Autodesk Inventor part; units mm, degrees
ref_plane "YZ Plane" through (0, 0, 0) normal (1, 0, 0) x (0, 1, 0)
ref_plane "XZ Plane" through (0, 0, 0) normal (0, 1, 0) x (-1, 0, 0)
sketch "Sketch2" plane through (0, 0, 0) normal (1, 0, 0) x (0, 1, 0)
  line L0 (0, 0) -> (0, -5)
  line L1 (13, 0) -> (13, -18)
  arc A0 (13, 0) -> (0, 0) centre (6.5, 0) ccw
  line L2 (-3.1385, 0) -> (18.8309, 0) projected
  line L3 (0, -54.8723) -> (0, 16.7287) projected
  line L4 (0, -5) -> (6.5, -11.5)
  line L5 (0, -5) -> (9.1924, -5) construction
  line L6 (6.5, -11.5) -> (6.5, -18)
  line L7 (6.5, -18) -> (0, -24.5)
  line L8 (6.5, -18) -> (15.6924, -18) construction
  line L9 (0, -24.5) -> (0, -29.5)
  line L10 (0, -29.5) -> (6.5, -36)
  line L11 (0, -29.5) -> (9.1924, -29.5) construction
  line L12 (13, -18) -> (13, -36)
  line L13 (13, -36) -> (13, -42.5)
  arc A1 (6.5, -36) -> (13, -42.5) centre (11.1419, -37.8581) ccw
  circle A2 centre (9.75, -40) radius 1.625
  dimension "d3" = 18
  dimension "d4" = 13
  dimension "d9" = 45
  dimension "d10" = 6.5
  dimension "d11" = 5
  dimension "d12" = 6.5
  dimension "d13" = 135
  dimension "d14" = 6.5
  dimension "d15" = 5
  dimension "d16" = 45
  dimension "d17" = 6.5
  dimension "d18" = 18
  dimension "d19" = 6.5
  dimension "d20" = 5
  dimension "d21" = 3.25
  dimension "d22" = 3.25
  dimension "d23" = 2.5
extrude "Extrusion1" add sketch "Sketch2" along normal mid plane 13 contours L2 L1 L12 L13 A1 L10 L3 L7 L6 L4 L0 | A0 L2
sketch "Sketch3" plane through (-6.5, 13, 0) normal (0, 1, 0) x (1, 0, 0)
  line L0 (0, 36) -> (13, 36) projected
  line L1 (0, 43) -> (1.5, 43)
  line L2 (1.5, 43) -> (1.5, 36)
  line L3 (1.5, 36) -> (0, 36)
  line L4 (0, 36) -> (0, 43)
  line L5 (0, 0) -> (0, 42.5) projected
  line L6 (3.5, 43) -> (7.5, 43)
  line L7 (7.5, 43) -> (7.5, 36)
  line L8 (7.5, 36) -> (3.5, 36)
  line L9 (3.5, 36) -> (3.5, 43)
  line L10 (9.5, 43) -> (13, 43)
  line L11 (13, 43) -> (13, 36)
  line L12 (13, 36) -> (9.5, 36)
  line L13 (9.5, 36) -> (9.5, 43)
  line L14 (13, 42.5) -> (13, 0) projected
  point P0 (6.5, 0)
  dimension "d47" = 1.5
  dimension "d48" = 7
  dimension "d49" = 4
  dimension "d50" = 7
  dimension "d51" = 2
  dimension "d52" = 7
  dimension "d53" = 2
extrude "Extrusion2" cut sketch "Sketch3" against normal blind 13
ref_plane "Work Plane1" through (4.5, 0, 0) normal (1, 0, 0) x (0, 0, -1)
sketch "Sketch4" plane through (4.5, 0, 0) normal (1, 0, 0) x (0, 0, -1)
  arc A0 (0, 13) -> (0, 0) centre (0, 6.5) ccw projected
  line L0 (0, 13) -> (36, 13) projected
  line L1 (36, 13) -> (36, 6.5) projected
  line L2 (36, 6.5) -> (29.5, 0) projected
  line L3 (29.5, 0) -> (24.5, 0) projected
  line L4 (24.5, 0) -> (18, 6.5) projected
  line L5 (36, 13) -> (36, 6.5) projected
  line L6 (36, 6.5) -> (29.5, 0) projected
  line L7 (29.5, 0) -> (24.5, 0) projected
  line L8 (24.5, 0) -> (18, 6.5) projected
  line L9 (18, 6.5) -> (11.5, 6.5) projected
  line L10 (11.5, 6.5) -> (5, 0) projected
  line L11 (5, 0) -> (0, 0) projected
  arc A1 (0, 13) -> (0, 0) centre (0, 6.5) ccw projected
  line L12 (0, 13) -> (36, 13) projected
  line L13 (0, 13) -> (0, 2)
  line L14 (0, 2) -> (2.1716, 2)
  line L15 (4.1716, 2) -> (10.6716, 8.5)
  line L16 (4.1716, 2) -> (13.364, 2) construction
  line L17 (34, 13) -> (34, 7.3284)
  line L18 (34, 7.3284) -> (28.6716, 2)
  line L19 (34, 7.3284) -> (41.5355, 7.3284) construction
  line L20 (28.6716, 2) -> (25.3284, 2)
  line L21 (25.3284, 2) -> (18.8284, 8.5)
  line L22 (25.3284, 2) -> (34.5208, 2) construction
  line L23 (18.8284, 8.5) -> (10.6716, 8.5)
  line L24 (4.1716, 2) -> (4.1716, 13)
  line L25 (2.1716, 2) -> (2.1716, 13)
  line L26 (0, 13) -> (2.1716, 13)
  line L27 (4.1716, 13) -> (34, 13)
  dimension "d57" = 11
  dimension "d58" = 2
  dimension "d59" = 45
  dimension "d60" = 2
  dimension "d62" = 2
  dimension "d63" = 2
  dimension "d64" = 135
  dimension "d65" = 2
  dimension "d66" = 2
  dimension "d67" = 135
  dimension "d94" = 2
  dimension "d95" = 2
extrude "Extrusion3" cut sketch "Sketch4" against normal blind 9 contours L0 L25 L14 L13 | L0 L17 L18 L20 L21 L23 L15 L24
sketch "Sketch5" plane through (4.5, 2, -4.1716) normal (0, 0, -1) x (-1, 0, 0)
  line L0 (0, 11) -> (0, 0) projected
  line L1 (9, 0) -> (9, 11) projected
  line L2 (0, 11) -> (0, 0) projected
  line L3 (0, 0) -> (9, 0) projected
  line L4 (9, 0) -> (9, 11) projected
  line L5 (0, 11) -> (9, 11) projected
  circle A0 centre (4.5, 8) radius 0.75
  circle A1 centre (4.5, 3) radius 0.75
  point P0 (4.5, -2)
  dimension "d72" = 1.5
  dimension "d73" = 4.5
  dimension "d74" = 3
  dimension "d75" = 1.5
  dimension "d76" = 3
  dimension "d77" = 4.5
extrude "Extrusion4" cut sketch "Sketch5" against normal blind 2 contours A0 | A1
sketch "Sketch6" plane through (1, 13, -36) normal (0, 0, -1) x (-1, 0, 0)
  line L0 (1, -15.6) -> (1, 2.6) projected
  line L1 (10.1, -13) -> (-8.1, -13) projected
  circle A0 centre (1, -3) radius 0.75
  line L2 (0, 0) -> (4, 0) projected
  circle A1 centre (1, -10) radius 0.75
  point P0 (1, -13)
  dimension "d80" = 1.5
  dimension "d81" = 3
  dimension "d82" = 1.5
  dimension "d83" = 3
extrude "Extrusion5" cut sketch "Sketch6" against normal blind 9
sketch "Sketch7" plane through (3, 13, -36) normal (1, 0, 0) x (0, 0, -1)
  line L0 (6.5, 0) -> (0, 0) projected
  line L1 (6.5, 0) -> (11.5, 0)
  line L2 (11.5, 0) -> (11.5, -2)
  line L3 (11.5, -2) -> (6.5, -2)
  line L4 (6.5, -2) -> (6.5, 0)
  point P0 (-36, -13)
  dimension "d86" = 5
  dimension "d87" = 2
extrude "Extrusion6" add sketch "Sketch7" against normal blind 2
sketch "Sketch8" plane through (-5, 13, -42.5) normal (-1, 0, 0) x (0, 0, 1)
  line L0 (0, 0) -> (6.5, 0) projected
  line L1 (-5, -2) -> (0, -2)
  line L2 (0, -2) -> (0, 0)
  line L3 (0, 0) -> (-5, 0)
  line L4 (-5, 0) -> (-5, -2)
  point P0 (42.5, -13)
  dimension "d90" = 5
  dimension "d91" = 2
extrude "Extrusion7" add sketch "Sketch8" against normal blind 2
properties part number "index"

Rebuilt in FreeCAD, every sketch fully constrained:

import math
import FreeCAD as App
import Part
import Sketcher

V = App.Vector
Q = App.Units.Quantity

doc = App.newDocument("Part")
body = doc.addObject("PartDesign::Body", "Body")

sketch1 = doc.addObject("Sketcher::SketchObject", "Sketch")
body.addObject(sketch1)
sketch1.AttachmentSupport = (doc.YZ_Plane, [""])
sketch1.MapMode = "FlatFace"
sketch1.addGeometry(Part.ArcOfCircle(Part.Circle(V(6.5, 0, 0), V(0, 0, 1), 6.5), math.radians(0), math.radians(180)), False)
sketch1.addGeometry(Part.LineSegment(V(0, 0, 0), V(0, -5, 0)), False)
sketch1.addGeometry(Part.LineSegment(V(0, -5, 0), V(6.5, -11.5, 0)), False)
sketch1.addGeometry(Part.LineSegment(V(6.5, -11.5, 0), V(6.5, -18, 0)), False)
sketch1.addGeometry(Part.LineSegment(V(6.5, -18, 0), V(0, -24.5, 0)), False)
sketch1.addGeometry(Part.LineSegment(V(0, -24.5, 0), V(0, -29.5, 0)), False)
sketch1.addGeometry(Part.LineSegment(V(0, -29.5, 0), V(6.5, -36, 0)), False)
sketch1.addGeometry(Part.ArcOfCircle(Part.Circle(V(11.1419, -37.8581, 0), V(0, 0, 1), 4.999977), math.radians(158.184333), math.radians(291.815667)), False)
sketch1.addGeometry(Part.LineSegment(V(13, -42.5, 0), V(13, 0, 0)), False)
sketch1.addGeometry(Part.Circle(V(9.75, -40, 0), V(0, 0, 1), 1.625), False)
sketch1.addConstraint(Sketcher.Constraint("Tangent", 0, 2, 1, 1))
sketch1.addConstraint(Sketcher.Constraint("Coincident", 1, 2, 2, 1))
sketch1.addConstraint(Sketcher.Constraint("Coincident", 2, 2, 3, 1))
sketch1.addConstraint(Sketcher.Constraint("Coincident", 3, 2, 4, 1))
sketch1.addConstraint(Sketcher.Constraint("Coincident", 4, 2, 5, 1))
sketch1.addConstraint(Sketcher.Constraint("Coincident", 5, 2, 6, 1))
sketch1.addConstraint(Sketcher.Constraint("Coincident", 6, 2, 7, 1))
sketch1.addConstraint(Sketcher.Constraint("Coincident", 7, 2, 8, 1))
sketch1.addConstraint(Sketcher.Constraint("Tangent", 8, 2, 0, 1))
sketch1.addConstraint(Sketcher.Constraint("Vertical", 1))
sketch1.addConstraint(Sketcher.Constraint("Vertical", 3))
sketch1.addConstraint(Sketcher.Constraint("Vertical", 5))
sketch1.addConstraint(Sketcher.Constraint("Vertical", 8))
sketch1.addConstraint(Sketcher.Constraint("Coincident", 0, 2, -1, 1))
sketch1.addConstraint(Sketcher.Constraint("PointOnObject", 4, 2, -2))
sketch1.addConstraint(Sketcher.Constraint("Perpendicular", 2, 4))
sketch1.addConstraint(Sketcher.Constraint("Perpendicular", 4, 6))
sketch1.addConstraint(Sketcher.Constraint("Vertical", 0, 3, 2, 2))
sketch1.addConstraint(Sketcher.Constraint("Vertical", 3, 2, 6, 2))
sketch1.addConstraint(Sketcher.Constraint("Equal", 1, 5))
sketch1.addConstraint(Sketcher.Constraint("Equal", 2, 4))
sketch1.addConstraint(Sketcher.Constraint("Radius", 7, Q("5 mm")))
sketch1.addConstraint(Sketcher.Constraint("Radius", 0, Q("6.5 mm")))
sketch1.addConstraint(Sketcher.Constraint("Diameter", 9, Q("3.25 mm")))
sketch1.addConstraint(Sketcher.Constraint("DistanceY", 1, 2, 1, 1, Q("5 mm")))
sketch1.addConstraint(Sketcher.Constraint("DistanceY", 3, 2, 3, 1, Q("6.5 mm")))
sketch1.addConstraint(Sketcher.Constraint("DistanceY", 7, 2, 5, 2, Q("13 mm")))
sketch1.addConstraint(Sketcher.Constraint("DistanceY", 7, 2, 9, 3, Q("2.5 mm")))
sketch1.addConstraint(Sketcher.Constraint("DistanceX", 0, 3, 9, 3, Q("3.25 mm")))
pad1 = doc.addObject("PartDesign::Pad", "Pad")
body.addObject(pad1)
pad1.Profile = sketch1
pad1.Length = 13
pad1.Midplane = True

sketch2 = doc.addObject("Sketcher::SketchObject", "Sketch001")
body.addObject(sketch2)
sketch2.AttachmentSupport = (doc.XZ_Plane, [""])
sketch2.MapMode = "FlatFace"
sketch2.AttachmentOffset = App.Placement(V(0, 0, -13), App.Rotation())
sketch2.addGeometry(Part.LineSegment(V(-6.5, -43, 0), V(-6.5, -36, 0)), False)
sketch2.addGeometry(Part.LineSegment(V(-6.5, -36, 0), V(-5, -36, 0)), False)
sketch2.addGeometry(Part.LineSegment(V(-5, -36, 0), V(-5, -43, 0)), False)
sketch2.addGeometry(Part.LineSegment(V(-5, -43, 0), V(-6.5, -43, 0)), False)
sketch2.addGeometry(Part.LineSegment(V(3, -43, 0), V(3, -36, 0)), False)
sketch2.addGeometry(Part.LineSegment(V(3, -36, 0), V(6.5, -36, 0)), False)
sketch2.addGeometry(Part.LineSegment(V(6.5, -36, 0), V(6.5, -43, 0)), False)
sketch2.addGeometry(Part.LineSegment(V(6.5, -43, 0), V(3, -43, 0)), False)
sketch2.addGeometry(Part.LineSegment(V(-3, -43, 0), V(-3, -36, 0)), False)
sketch2.addGeometry(Part.LineSegment(V(-3, -36, 0), V(1, -36, 0)), False)
sketch2.addGeometry(Part.LineSegment(V(1, -36, 0), V(1, -43, 0)), False)
sketch2.addGeometry(Part.LineSegment(V(1, -43, 0), V(-3, -43, 0)), False)
sketch2.addConstraint(Sketcher.Constraint("Coincident", 0, 2, 1, 1))
sketch2.addConstraint(Sketcher.Constraint("Coincident", 1, 2, 2, 1))
sketch2.addConstraint(Sketcher.Constraint("Coincident", 2, 2, 3, 1))
sketch2.addConstraint(Sketcher.Constraint("Coincident", 3, 2, 0, 1))
sketch2.addConstraint(Sketcher.Constraint("Coincident", 4, 2, 5, 1))
sketch2.addConstraint(Sketcher.Constraint("Coincident", 5, 2, 6, 1))
sketch2.addConstraint(Sketcher.Constraint("Coincident", 6, 2, 7, 1))
sketch2.addConstraint(Sketcher.Constraint("Coincident", 7, 2, 4, 1))
sketch2.addConstraint(Sketcher.Constraint("Coincident", 8, 2, 9, 1))
sketch2.addConstraint(Sketcher.Constraint("Coincident", 9, 2, 10, 1))
sketch2.addConstraint(Sketcher.Constraint("Coincident", 10, 2, 11, 1))
sketch2.addConstraint(Sketcher.Constraint("Coincident", 11, 2, 8, 1))
sketch2.addConstraint(Sketcher.Constraint("Vertical", 0))
sketch2.addConstraint(Sketcher.Constraint("Horizontal", 1))
sketch2.addConstraint(Sketcher.Constraint("Vertical", 2))
sketch2.addConstraint(Sketcher.Constraint("Horizontal", 3))
sketch2.addConstraint(Sketcher.Constraint("Vertical", 4))
sketch2.addConstraint(Sketcher.Constraint("Horizontal", 5))
sketch2.addConstraint(Sketcher.Constraint("Vertical", 6))
sketch2.addConstraint(Sketcher.Constraint("Horizontal", 7))
sketch2.addConstraint(Sketcher.Constraint("Vertical", 8))
sketch2.addConstraint(Sketcher.Constraint("Horizontal", 9))
sketch2.addConstraint(Sketcher.Constraint("Vertical", 10))
sketch2.addConstraint(Sketcher.Constraint("Horizontal", 11))
sketch2.addConstraint(Sketcher.Constraint("Symmetric", 0, 2, 5, 2, -2))
sketch2.addConstraint(Sketcher.Constraint("Symmetric", 4, 2, 8, 2, -2))
sketch2.addConstraint(Sketcher.Constraint("Horizontal", 3, 2, 6, 2))
sketch2.addConstraint(Sketcher.Constraint("Horizontal", 7, 2, 10, 2))
sketch2.addConstraint(Sketcher.Constraint("DistanceX", 9, 1, 9, 2, Q("4 mm")))
sketch2.addConstraint(Sketcher.Constraint("DistanceY", 0, 1, 0, 2, Q("7 mm")))
sketch2.addConstraint(Sketcher.Constraint("DistanceX", 1, 1, 1, 2, Q("1.5 mm")))
sketch2.addConstraint(Sketcher.Constraint("DistanceX", 1, 2, 8, 2, Q("2 mm")))
sketch2.addConstraint(Sketcher.Constraint("DistanceX", 9, 2, 4, 2, Q("2 mm")))
sketch2.addConstraint(Sketcher.Constraint("DistanceY", 0, 2, -1, 1, Q("36 mm")))
pocket1 = doc.addObject("PartDesign::Pocket", "Pocket")
body.addObject(pocket1)
pocket1.Profile = sketch2
pocket1.Length = 13
pocket1.Reversed = True

sketch3 = doc.addObject("Sketcher::SketchObject", "Sketch002")
body.addObject(sketch3)
sketch3.AttachmentSupport = (doc.YZ_Plane, [""])
sketch3.MapMode = "FlatFace"
sketch3.AttachmentOffset = App.Placement(V(0, 0, 4.5), App.Rotation())
sketch3.addGeometry(Part.LineSegment(V(13, -2.1716, 0), V(13, 0, 0)), False)
sketch3.addGeometry(Part.LineSegment(V(13, 0, 0), V(2, 0, 0)), False)
sketch3.addGeometry(Part.LineSegment(V(2, 0, 0), V(2, -2.1716, 0)), False)
sketch3.addGeometry(Part.LineSegment(V(2, -2.1716, 0), V(13, -2.1716, 0)), False)
sketch3.addGeometry(Part.LineSegment(V(13, -34, 0), V(13, -4.1716, 0)), False)
sketch3.addGeometry(Part.LineSegment(V(13, -4.1716, 0), V(2, -4.1716, 0)), False)
sketch3.addGeometry(Part.LineSegment(V(2, -4.1716, 0), V(8.5, -10.6716, 0)), False)
sketch3.addGeometry(Part.LineSegment(V(8.5, -10.6716, 0), V(8.5, -18.8284, 0)), False)
sketch3.addGeometry(Part.LineSegment(V(8.5, -18.8284, 0), V(2, -25.3284, 0)), False)
sketch3.addGeometry(Part.LineSegment(V(2, -25.3284, 0), V(2, -28.6716, 0)), False)
sketch3.addGeometry(Part.LineSegment(V(2, -28.6716, 0), V(7.3284, -34, 0)), False)
sketch3.addGeometry(Part.LineSegment(V(7.3284, -34, 0), V(13, -34, 0)), False)
sketch3.addConstraint(Sketcher.Constraint("Coincident", 0, 2, 1, 1))
sketch3.addConstraint(Sketcher.Constraint("Coincident", 1, 2, 2, 1))
sketch3.addConstraint(Sketcher.Constraint("Coincident", 2, 2, 3, 1))
sketch3.addConstraint(Sketcher.Constraint("Coincident", 3, 2, 0, 1))
sketch3.addConstraint(Sketcher.Constraint("Coincident", 4, 2, 5, 1))
sketch3.addConstraint(Sketcher.Constraint("Coincident", 5, 2, 6, 1))
sketch3.addConstraint(Sketcher.Constraint("Coincident", 6, 2, 7, 1))
sketch3.addConstraint(Sketcher.Constraint("Coincident", 7, 2, 8, 1))
sketch3.addConstraint(Sketcher.Constraint("Coincident", 8, 2, 9, 1))
sketch3.addConstraint(Sketcher.Constraint("Coincident", 9, 2, 10, 1))
sketch3.addConstraint(Sketcher.Constraint("Coincident", 10, 2, 11, 1))
sketch3.addConstraint(Sketcher.Constraint("Coincident", 11, 2, 4, 1))
sketch3.addConstraint(Sketcher.Constraint("Vertical", 0))
sketch3.addConstraint(Sketcher.Constraint("Horizontal", 1))
sketch3.addConstraint(Sketcher.Constraint("Vertical", 2))
sketch3.addConstraint(Sketcher.Constraint("Horizontal", 3))
sketch3.addConstraint(Sketcher.Constraint("Vertical", 4))
sketch3.addConstraint(Sketcher.Constraint("Horizontal", 5))
sketch3.addConstraint(Sketcher.Constraint("Vertical", 7))
sketch3.addConstraint(Sketcher.Constraint("Vertical", 9))
sketch3.addConstraint(Sketcher.Constraint("Horizontal", 11))
sketch3.addConstraint(Sketcher.Constraint("PointOnObject", 0, 2, -1))
sketch3.addConstraint(Sketcher.Constraint("Perpendicular", 6, 8))
sketch3.addConstraint(Sketcher.Constraint("Perpendicular", 8, 10))
sketch3.addConstraint(Sketcher.Constraint("Vertical", 3, 2, 4, 2))
sketch3.addConstraint(Sketcher.Constraint("Vertical", 2, 2, 5, 2))
sketch3.addConstraint(Sketcher.Constraint("Vertical", 5, 2, 8, 2))
sketch3.addConstraint(Sketcher.Constraint("Equal", 6, 8))
sketch3.addConstraint(Sketcher.Constraint("DistanceX", 1, 2, 1, 1, Q("11 mm")))
sketch3.addConstraint(Sketcher.Constraint("DistanceX", -1, 1, 1, 2, Q("2 mm")))
sketch3.addConstraint(Sketcher.Constraint("DistanceY", 4, 2, 3, 2, Q("2 mm")))
sketch3.addConstraint(Sketcher.Constraint("DistanceY", 10, 2, -1, 1, Q("34 mm")))
sketch3.addConstraint(Sketcher.Constraint("DistanceY", 9, 2, 6, 2, Q("18 mm")))
sketch3.addConstraint(Sketcher.Constraint("DistanceX", -1, 1, 6, 2, Q("8.5 mm")))
sketch3.addConstraint(Sketcher.Constraint("DistanceX", 11, 1, 11, 2, Q("5.6716 mm")))
sketch3.addConstraint(Sketcher.Constraint("DistanceY", 7, 2, 7, 1, Q("8.1568 mm")))
pocket2 = doc.addObject("PartDesign::Pocket", "Pocket001")
body.addObject(pocket2)
pocket2.Profile = sketch3
pocket2.Length = 9

sketch4 = doc.addObject("Sketcher::SketchObject", "Sketch003")
body.addObject(sketch4)
sketch4.AttachmentSupport = (doc.XY_Plane, [""])
sketch4.MapMode = "FlatFace"
sketch4.AttachmentOffset = App.Placement(V(0, 0, -4.1716), App.Rotation())
sketch4.addGeometry(Part.Circle(V(0, 10, 0), V(0, 0, 1), 0.75), False)
sketch4.addGeometry(Part.Circle(V(0, 5, 0), V(0, 0, 1), 0.75), False)
sketch4.addConstraint(Sketcher.Constraint("Equal", 0, 1))
sketch4.addConstraint(Sketcher.Constraint("PointOnObject", 0, 3, -2))
sketch4.addConstraint(Sketcher.Constraint("PointOnObject", 1, 3, -2))
sketch4.addConstraint(Sketcher.Constraint("Diameter", 0, Q("1.5 mm")))
sketch4.addConstraint(Sketcher.Constraint("DistanceY", -1, 1, 0, 3, Q("10 mm")))
sketch4.addConstraint(Sketcher.Constraint("DistanceY", -1, 1, 1, 3, Q("5 mm")))
pocket3 = doc.addObject("PartDesign::Pocket", "Pocket002")
body.addObject(pocket3)
pocket3.Profile = sketch4
pocket3.Length = 2
pocket3.Reversed = True

sketch5 = doc.addObject("Sketcher::SketchObject", "Sketch004")
body.addObject(sketch5)
sketch5.AttachmentSupport = (doc.XY_Plane, [""])
sketch5.MapMode = "FlatFace"
sketch5.AttachmentOffset = App.Placement(V(0, 0, -36), App.Rotation())
sketch5.addGeometry(Part.Circle(V(0, 3, 0), V(0, 0, 1), 0.75), False)
sketch5.addGeometry(Part.Circle(V(0, 10, 0), V(0, 0, 1), 0.75), False)
sketch5.addConstraint(Sketcher.Constraint("Equal", 0, 1))
sketch5.addConstraint(Sketcher.Constraint("PointOnObject", 0, 3, -2))
sketch5.addConstraint(Sketcher.Constraint("PointOnObject", 1, 3, -2))
sketch5.addConstraint(Sketcher.Constraint("Diameter", 0, Q("1.5 mm")))
sketch5.addConstraint(Sketcher.Constraint("DistanceY", -1, 1, 0, 3, Q("3 mm")))
sketch5.addConstraint(Sketcher.Constraint("DistanceY", -1, 1, 1, 3, Q("10 mm")))
pocket4 = doc.addObject("PartDesign::Pocket", "Pocket003")
body.addObject(pocket4)
pocket4.Profile = sketch5
pocket4.Length = 9
pocket4.Reversed = True

sketch6 = doc.addObject("Sketcher::SketchObject", "Sketch005")
body.addObject(sketch6)
sketch6.AttachmentSupport = (doc.YZ_Plane, [""])
sketch6.MapMode = "FlatFace"
sketch6.AttachmentOffset = App.Placement(V(0, 0, 3), App.Rotation())
sketch6.addGeometry(Part.LineSegment(V(13, -47.5, 0), V(13, -42.5, 0)), False)
sketch6.addGeometry(Part.LineSegment(V(13, -42.5, 0), V(11, -42.5, 0)), False)
sketch6.addGeometry(Part.LineSegment(V(11, -42.5, 0), V(11, -47.5, 0)), False)
sketch6.addGeometry(Part.LineSegment(V(11, -47.5, 0), V(13, -47.5, 0)), False)
sketch6.addConstraint(Sketcher.Constraint("Coincident", 0, 2, 1, 1))
sketch6.addConstraint(Sketcher.Constraint("Coincident", 1, 2, 2, 1))
sketch6.addConstraint(Sketcher.Constraint("Coincident", 2, 2, 3, 1))
sketch6.addConstraint(Sketcher.Constraint("Coincident", 3, 2, 0, 1))
sketch6.addConstraint(Sketcher.Constraint("Vertical", 0))
sketch6.addConstraint(Sketcher.Constraint("Horizontal", 1))
sketch6.addConstraint(Sketcher.Constraint("Vertical", 2))
sketch6.addConstraint(Sketcher.Constraint("Horizontal", 3))
sketch6.addConstraint(Sketcher.Constraint("DistanceX", 1, 2, 1, 1, Q("2 mm")))
sketch6.addConstraint(Sketcher.Constraint("DistanceY", 0, 1, 0, 2, Q("5 mm")))
sketch6.addConstraint(Sketcher.Constraint("DistanceX", -1, 1, 0, 2, Q("13 mm")))
sketch6.addConstraint(Sketcher.Constraint("DistanceY", 0, 2, -1, 1, Q("42.5 mm")))
pad2 = doc.addObject("PartDesign::Pad", "Pad001")
body.addObject(pad2)
pad2.Profile = sketch6
pad2.Length = 2
pad2.Reversed = True

sketch7 = doc.addObject("Sketcher::SketchObject", "Sketch006")
body.addObject(sketch7)
sketch7.AttachmentSupport = (doc.YZ_Plane, [""])
sketch7.MapMode = "FlatFace"
sketch7.AttachmentOffset = App.Placement(V(0, 0, -5), App.Rotation())
sketch7.addGeometry(Part.LineSegment(V(13, -47.5, 0), V(11, -47.5, 0)), False)
sketch7.addGeometry(Part.LineSegment(V(11, -47.5, 0), V(11, -42.5, 0)), False)
sketch7.addGeometry(Part.LineSegment(V(11, -42.5, 0), V(13, -42.5, 0)), False)
sketch7.addGeometry(Part.LineSegment(V(13, -42.5, 0), V(13, -47.5, 0)), False)
sketch7.addConstraint(Sketcher.Constraint("Coincident", 0, 2, 1, 1))
sketch7.addConstraint(Sketcher.Constraint("Coincident", 1, 2, 2, 1))
sketch7.addConstraint(Sketcher.Constraint("Coincident", 2, 2, 3, 1))
sketch7.addConstraint(Sketcher.Constraint("Coincident", 3, 2, 0, 1))
sketch7.addConstraint(Sketcher.Constraint("Horizontal", 0))
sketch7.addConstraint(Sketcher.Constraint("Vertical", 1))
sketch7.addConstraint(Sketcher.Constraint("Horizontal", 2))
sketch7.addConstraint(Sketcher.Constraint("Vertical", 3))
sketch7.addConstraint(Sketcher.Constraint("DistanceX", 0, 2, 0, 1, Q("2 mm")))
sketch7.addConstraint(Sketcher.Constraint("DistanceY", 1, 1, 1, 2, Q("5 mm")))
sketch7.addConstraint(Sketcher.Constraint("DistanceX", -1, 1, 0, 2, Q("11 mm")))
sketch7.addConstraint(Sketcher.Constraint("DistanceY", 0, 2, -1, 1, Q("47.5 mm")))
pad3 = doc.addObject("PartDesign::Pad", "Pad002")
body.addObject(pad3)
pad3.Profile = sketch7
pad3.Length = 2

doc.recompute()
